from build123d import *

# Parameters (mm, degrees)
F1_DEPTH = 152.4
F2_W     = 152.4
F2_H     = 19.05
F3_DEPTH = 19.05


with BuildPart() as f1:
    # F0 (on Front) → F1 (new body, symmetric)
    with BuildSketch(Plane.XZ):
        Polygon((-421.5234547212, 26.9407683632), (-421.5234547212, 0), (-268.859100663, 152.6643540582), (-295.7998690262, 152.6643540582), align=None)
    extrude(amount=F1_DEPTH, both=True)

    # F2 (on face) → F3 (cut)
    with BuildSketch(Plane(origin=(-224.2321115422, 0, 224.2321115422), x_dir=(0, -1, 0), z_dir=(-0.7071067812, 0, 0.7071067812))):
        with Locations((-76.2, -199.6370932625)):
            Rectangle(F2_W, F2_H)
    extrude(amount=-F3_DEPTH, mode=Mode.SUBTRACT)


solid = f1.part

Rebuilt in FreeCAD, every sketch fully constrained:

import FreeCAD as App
import Part
import Sketcher
from FreeCAD import Vector
Q = App.Units.Quantity


def add_polygon(sketch, points):
    """Adds a closed chain of lines whose ends are joined by coincident constraints."""
    first, n = sketch.GeometryCount, len(points)
    for a, b in zip(points, points[1:] + points[:1]):
        sketch.addGeometry(Part.LineSegment(App.Vector(*a, 0), App.Vector(*b, 0)), False)
    for i in range(n):
        sketch.addConstraint(Sketcher.Constraint("Coincident", first + i, 2, first + (i + 1) % n, 1))

doc = App.newDocument("Part")
body = doc.addObject("PartDesign::Body", "Body")

sketch1 = body.newObject("Sketcher::SketchObject", "Sketch")
sketch1.AttachmentSupport = (doc.getObject("XZ_Plane"), [""])
sketch1.MapMode = "FlatFace"
add_polygon(sketch1, [(-422, 27), (-422, 0), (-269, 153), (-296, 153)])
sketch1.addConstraint(Sketcher.Constraint("Vertical", 0))
sketch1.addConstraint(Sketcher.Constraint("Horizontal", 2))
sketch1.addConstraint(Sketcher.Constraint("PointOnObject", 0, 2, -1))
sketch1.addConstraint(Sketcher.Constraint("Parallel", 1, 3))
sketch1.addConstraint(Sketcher.Constraint("Equal", 2, 0))
sketch1.addConstraint(Sketcher.Constraint("Distance", 3, Q("7 in")))
sketch1.addConstraint(Sketcher.Constraint("Distance", 1, Q("8.5 in")))
sketch1.addConstraint(Sketcher.Constraint("DistanceX", 1, 2, -1, 1, 268.859101))
pad1 = body.newObject("PartDesign::Pad", "Pad")
pad1.Profile = sketch1
pad1.Length = Q("12 in")
pad1.Midplane = True

sketch2 = body.newObject("Sketcher::SketchObject", "Sketch001")
sketch2.Placement = App.Placement(Vector(-224.232112, 0, 224.232112), App.Rotation(Vector(0, -1, 0), Vector(0.707106781, 0, 0.707106781), Vector(-0.707106781, 0, 0.707106781), "ZXY"))
add_polygon(sketch2, [(-152, -190), (-152, -209), (0, -209), (0, -190)])
sketch2.addConstraint(Sketcher.Constraint("Vertical", 0))
sketch2.addConstraint(Sketcher.Constraint("Horizontal", 1))
sketch2.addConstraint(Sketcher.Constraint("Vertical", 2))
sketch2.addConstraint(Sketcher.Constraint("Horizontal", 3))
sketch2.addConstraint(Sketcher.Constraint("PointOnObject", 1, 2, -2))
sketch2.addConstraint(Sketcher.Constraint("DistanceX", 1, 1, 1, 2, Q("6 in")))
sketch2.addConstraint(Sketcher.Constraint("DistanceY", 0, 2, 0, 1, Q("0.75 in")))
sketch2.addConstraint(Sketcher.Constraint("DistanceY", 0, 2, -1, 1, 209.162093))
pocket1 = body.newObject("PartDesign::Pocket", "Pocket")
pocket1.Profile = sketch2
pocket1.Length = Q("0.75 in")

doc.recompute()
